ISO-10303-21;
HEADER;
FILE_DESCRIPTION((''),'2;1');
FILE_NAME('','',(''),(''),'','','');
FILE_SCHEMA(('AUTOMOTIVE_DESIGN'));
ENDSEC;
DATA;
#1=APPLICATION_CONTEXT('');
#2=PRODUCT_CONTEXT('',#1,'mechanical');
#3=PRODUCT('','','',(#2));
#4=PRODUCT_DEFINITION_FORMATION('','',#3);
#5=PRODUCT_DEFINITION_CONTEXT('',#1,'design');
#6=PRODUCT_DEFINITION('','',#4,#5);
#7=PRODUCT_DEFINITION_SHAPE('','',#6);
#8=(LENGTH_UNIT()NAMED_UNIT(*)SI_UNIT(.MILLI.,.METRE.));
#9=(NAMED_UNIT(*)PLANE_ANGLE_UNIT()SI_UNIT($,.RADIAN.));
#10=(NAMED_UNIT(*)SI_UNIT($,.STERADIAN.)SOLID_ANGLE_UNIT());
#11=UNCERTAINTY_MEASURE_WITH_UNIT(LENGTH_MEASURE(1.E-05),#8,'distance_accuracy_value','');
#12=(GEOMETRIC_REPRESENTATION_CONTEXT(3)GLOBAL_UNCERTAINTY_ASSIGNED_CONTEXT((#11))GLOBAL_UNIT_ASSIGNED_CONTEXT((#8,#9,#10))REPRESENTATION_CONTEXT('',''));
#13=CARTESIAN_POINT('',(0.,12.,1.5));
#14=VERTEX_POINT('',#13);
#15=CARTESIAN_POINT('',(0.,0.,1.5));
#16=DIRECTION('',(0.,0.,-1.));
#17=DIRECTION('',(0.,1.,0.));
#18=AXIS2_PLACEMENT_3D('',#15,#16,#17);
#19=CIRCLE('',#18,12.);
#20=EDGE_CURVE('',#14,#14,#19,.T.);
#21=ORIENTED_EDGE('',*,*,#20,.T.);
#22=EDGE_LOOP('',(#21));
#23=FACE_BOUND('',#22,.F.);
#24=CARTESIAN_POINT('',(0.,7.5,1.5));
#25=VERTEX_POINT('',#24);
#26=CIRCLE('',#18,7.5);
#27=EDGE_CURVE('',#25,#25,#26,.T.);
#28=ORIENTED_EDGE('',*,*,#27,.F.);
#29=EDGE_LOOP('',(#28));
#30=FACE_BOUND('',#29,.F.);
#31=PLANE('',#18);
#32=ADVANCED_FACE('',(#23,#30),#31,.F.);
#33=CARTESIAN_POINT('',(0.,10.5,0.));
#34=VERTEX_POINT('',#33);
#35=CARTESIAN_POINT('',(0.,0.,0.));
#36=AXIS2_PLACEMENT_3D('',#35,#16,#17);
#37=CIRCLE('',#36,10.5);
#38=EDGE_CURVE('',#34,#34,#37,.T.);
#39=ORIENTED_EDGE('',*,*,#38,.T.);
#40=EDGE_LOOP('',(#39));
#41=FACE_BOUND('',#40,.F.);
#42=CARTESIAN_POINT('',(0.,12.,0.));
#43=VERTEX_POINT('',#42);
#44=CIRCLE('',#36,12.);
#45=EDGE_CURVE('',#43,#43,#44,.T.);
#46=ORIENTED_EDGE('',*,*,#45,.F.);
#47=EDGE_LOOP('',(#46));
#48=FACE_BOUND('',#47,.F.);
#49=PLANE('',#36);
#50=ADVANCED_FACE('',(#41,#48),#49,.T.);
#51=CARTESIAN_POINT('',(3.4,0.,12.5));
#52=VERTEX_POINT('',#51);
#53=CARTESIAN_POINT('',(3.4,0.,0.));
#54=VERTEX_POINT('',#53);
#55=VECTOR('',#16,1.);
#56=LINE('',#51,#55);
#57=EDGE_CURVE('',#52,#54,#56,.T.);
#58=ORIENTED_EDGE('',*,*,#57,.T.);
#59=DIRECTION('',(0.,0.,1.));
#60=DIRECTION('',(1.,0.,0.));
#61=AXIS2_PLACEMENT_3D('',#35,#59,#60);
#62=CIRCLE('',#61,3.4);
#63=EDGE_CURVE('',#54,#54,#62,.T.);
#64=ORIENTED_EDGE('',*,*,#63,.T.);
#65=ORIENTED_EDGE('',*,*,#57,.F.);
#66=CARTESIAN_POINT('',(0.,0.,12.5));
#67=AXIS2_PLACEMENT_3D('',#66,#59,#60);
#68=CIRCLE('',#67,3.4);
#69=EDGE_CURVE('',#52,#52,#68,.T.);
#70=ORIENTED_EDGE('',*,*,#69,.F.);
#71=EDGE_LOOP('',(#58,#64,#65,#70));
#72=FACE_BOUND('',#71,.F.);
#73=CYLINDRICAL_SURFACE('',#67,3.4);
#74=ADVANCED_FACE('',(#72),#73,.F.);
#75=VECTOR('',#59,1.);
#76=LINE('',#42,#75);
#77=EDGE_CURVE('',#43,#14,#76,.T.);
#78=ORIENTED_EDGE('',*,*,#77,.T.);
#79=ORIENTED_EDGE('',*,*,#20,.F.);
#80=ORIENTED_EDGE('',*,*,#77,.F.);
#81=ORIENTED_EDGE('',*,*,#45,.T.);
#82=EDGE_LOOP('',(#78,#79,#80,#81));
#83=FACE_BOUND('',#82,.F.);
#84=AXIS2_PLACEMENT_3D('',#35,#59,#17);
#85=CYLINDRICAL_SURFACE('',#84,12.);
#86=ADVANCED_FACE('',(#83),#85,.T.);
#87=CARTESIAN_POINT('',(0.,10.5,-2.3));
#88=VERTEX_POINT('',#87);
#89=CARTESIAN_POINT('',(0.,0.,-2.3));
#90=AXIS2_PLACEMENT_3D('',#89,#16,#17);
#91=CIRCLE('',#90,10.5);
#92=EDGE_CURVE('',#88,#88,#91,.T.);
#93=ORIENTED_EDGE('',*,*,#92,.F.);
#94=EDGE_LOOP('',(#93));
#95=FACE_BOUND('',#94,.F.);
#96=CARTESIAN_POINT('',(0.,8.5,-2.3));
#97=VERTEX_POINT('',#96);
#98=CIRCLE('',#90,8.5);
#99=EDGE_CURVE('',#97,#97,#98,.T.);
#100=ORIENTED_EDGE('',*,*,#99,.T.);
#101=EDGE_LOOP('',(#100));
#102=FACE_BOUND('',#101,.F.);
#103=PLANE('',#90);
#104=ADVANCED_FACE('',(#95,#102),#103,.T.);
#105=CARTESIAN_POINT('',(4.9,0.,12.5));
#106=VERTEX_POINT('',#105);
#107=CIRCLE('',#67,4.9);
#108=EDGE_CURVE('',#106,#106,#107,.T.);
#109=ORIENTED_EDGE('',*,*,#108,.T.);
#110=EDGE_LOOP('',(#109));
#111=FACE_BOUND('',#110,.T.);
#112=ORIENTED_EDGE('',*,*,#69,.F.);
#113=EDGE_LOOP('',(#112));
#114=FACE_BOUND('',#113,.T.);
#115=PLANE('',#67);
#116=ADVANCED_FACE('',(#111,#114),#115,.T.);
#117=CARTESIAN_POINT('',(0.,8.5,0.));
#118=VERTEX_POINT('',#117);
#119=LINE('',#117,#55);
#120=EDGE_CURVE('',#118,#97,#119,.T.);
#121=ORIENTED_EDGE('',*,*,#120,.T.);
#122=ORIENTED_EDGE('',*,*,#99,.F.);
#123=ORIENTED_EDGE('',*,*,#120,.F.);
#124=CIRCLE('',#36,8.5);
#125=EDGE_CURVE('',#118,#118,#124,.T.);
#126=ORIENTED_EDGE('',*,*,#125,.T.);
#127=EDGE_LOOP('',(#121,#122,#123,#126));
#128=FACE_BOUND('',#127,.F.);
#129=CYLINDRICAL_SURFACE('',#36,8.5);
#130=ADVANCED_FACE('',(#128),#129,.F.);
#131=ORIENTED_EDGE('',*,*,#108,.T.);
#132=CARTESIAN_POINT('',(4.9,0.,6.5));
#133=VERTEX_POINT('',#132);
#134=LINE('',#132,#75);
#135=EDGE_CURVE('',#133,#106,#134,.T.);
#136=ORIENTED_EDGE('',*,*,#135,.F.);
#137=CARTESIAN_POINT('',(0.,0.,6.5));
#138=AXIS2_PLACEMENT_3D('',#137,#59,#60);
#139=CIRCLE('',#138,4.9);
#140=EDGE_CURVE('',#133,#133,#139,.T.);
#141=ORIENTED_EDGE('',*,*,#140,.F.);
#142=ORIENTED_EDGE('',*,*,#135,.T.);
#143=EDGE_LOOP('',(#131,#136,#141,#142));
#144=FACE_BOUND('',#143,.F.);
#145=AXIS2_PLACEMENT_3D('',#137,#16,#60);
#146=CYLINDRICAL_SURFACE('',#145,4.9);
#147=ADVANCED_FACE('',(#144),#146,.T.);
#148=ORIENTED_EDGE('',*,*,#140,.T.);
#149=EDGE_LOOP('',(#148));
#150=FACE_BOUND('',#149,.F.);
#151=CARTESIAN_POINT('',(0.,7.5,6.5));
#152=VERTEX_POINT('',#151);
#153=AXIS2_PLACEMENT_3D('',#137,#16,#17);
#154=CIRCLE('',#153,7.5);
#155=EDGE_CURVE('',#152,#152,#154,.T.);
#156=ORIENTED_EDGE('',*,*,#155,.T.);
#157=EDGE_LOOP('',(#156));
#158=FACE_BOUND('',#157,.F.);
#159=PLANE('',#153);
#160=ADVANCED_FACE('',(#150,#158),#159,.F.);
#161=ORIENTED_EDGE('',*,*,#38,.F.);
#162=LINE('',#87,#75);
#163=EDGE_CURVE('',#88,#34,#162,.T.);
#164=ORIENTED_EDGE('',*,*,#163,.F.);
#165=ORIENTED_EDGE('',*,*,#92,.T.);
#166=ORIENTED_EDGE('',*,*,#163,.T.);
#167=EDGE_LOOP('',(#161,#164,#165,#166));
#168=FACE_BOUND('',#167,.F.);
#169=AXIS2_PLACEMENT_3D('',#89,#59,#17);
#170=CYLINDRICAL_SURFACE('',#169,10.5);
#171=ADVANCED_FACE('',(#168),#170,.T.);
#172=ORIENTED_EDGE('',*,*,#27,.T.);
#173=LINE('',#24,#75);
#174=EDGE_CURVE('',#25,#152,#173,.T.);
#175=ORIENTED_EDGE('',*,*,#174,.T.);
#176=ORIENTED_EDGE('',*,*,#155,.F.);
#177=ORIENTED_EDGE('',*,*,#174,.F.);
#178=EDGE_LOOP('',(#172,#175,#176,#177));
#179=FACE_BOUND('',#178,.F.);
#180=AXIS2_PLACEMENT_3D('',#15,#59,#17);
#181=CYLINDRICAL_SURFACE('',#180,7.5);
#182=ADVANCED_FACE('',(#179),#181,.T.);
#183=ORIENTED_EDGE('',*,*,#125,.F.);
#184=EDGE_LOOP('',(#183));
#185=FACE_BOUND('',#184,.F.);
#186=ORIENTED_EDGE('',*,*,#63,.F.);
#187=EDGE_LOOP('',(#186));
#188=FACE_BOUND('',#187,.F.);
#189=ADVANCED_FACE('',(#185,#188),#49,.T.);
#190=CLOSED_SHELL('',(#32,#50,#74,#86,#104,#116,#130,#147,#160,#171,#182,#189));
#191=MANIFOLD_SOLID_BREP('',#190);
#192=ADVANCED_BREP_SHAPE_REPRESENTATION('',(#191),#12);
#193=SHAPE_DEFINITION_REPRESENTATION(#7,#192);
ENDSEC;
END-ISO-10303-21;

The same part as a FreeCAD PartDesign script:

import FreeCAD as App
import Part
import Sketcher

V = App.Vector

doc = App.newDocument("Part")
body = doc.addObject("PartDesign::Body", "Body")

# Sketch on YZ plane
sketch1 = doc.addObject("Sketcher::SketchObject", "Sketch")
body.addObject(sketch1)
sketch1.AttachmentSupport = (doc.YZ_Plane, [""])
sketch1.MapMode = "FlatFace"
sketch1.addGeometry([
    Part.LineSegment(V(0, 6.5, 0), V(0, 0, 0)),  # 0
    Part.LineSegment(V(0, 0, 0), V(8.5, 0, 0)),  # 1
    Part.LineSegment(V(8.5, 0, 0), V(8.5, -2.3, 0)),  # 2
    Part.LineSegment(V(8.5, -2.3, 0), V(10.5, -2.3, 0)),  # 3
    Part.LineSegment(V(10.5, -2.3, 0), V(10.5, 0, 0)),  # 4
    Part.LineSegment(V(10.5, 0, 0), V(12, 0, 0)),  # 5
    Part.LineSegment(V(12, 0, 0), V(12, 1.5, 0)),  # 6
    Part.LineSegment(V(12, 1.5, 0), V(7.5, 1.5, 0)),  # 7
    Part.LineSegment(V(7.5, 1.5, 0), V(7.5, 6.5, 0)),  # 8
    Part.LineSegment(V(7.5, 6.5, 0), V(0, 6.5, 0)),  # 9
], False)
sketch1.addConstraint([
    Sketcher.Constraint("Coincident", 0, 2, 1, 1),
    Sketcher.Constraint("Coincident", 1, 2, 2, 1),
    Sketcher.Constraint("Coincident", 2, 2, 3, 1),
    Sketcher.Constraint("Coincident", 3, 2, 4, 1),
    Sketcher.Constraint("Coincident", 4, 2, 5, 1),
    Sketcher.Constraint("Coincident", 5, 2, 6, 1),
    Sketcher.Constraint("Coincident", 6, 2, 7, 1),
    Sketcher.Constraint("Coincident", 7, 2, 8, 1),
    Sketcher.Constraint("Coincident", 8, 2, 9, 1),
    Sketcher.Constraint("Coincident", 9, 2, 0, 1),
    Sketcher.Constraint("Vertical", 0),
    Sketcher.Constraint("Horizontal", 1),
    Sketcher.Constraint("Vertical", 2),
    Sketcher.Constraint("Horizontal", 3),
    Sketcher.Constraint("Vertical", 4),
    Sketcher.Constraint("Horizontal", 5),
    Sketcher.Constraint("Vertical", 6),
    Sketcher.Constraint("Horizontal", 7),
    Sketcher.Constraint("Vertical", 8),
    Sketcher.Constraint("Horizontal", 9),
    Sketcher.Constraint("Coincident", 0, 2, -1, 1),
    Sketcher.Constraint("PointOnObject", 4, 2, -1),
    Sketcher.Constraint("Equal", 5, 6),
    Sketcher.Constraint("DistanceX", 3, 1, 3, 2, 2.0),
    Sketcher.Constraint("DistanceY", 8, 1, 8, 2, 5.0),
    Sketcher.Constraint("DistanceX", 1, 1, 1, 2, 8.5),
    Sketcher.Constraint("DistanceX", 5, 1, 5, 2, 1.5),
    Sketcher.Constraint("DistanceX", 7, 2, 7, 1, 4.5),
    Sketcher.Constraint("DistanceY", 2, 2, 2, 1, 2.3),
])
revolution = doc.addObject("PartDesign::Revolution", "Revolution")
body.addObject(revolution)
revolution.Profile = sketch1
revolution.ReferenceAxis = (sketch1, ["V_Axis"])
revolution.Angle = 360

# Sketch on XY plane
sketch2 = doc.addObject("Sketcher::SketchObject", "Sketch001")
body.addObject(sketch2)
sketch2.AttachmentSupport = (doc.XY_Plane, [""])
sketch2.MapMode = "FlatFace"
sketch2.AttachmentOffset = App.Placement(V(0, 0, 6.5), App.Rotation())
sketch2.addGeometry(Part.Circle(V(0, 0, 0), V(0, 0, 1), 4.9), False)
sketch2.addConstraint([
    Sketcher.Constraint("Coincident", 0, 3, -1, 1),
    Sketcher.Constraint("Diameter", 0, 9.8),
])
pad1 = doc.addObject("PartDesign::Pad", "Pad")
body.addObject(pad1)
pad1.Profile = sketch2
pad1.Length = 6

# Sketch on XY plane
sketch3 = doc.addObject("Sketcher::SketchObject", "Sketch002")
body.addObject(sketch3)
sketch3.AttachmentSupport = (doc.XY_Plane, [""])
sketch3.MapMode = "FlatFace"
sketch3.AttachmentOffset = App.Placement(V(0, 0, 12.5), App.Rotation())
sketch3.addGeometry(Part.Circle(V(0, 0, 0), V(0, 0, 1), 3.4), False)
sketch3.addConstraint([
    Sketcher.Constraint("Coincident", 0, 3, -1, 1),
    Sketcher.Constraint("Diameter", 0, 6.8),
])
pocket1 = doc.addObject("PartDesign::Pocket", "Pocket")
body.addObject(pocket1)
pocket1.Profile = sketch3
pocket1.Type = "ThroughAll"

doc.recompute()
